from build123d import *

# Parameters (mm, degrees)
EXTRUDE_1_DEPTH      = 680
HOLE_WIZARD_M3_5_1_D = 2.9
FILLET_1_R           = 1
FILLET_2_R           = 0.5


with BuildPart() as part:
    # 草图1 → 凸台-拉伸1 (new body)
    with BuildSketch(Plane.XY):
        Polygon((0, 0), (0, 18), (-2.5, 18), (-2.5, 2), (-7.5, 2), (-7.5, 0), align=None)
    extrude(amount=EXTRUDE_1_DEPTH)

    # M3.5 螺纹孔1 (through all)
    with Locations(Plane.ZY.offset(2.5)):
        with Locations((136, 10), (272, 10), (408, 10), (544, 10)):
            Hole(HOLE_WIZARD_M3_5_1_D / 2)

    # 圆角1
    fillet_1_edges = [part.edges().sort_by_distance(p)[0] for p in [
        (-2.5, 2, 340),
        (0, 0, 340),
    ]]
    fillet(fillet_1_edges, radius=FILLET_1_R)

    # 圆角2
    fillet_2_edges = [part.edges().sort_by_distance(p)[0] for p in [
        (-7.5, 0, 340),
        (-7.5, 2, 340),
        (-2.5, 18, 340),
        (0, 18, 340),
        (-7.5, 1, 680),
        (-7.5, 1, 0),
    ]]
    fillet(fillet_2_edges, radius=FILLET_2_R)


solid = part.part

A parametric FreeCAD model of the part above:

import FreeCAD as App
import Part
import Sketcher


def edges_at(feature, points):
    """Names of the edges that pass closest to the given points."""
    edges = feature.Shape.Edges
    near = lambda p: min(range(len(edges)), key=lambda i: edges[i].distToShape(Part.Vertex(*p))[0])
    return sorted({f"Edge{near(p) + 1}" for p in points})

doc = App.newDocument("Part")
body = doc.addObject("PartDesign::Body", "Body")

# Sketch on XY plane
sketch1 = body.newObject("Sketcher::SketchObject", "Sketch")
sketch1.AttachmentSupport = (doc.getObject("XY_Plane"), [""])
sketch1.MapMode = "FlatFace"
sketch1.addGeometry([
    Part.LineSegment(App.Vector(0, 0, 0), App.Vector(0, 18, 0)),  # 0
    Part.LineSegment(App.Vector(0, 18, 0), App.Vector(-2.5, 18, 0)),  # 1
    Part.LineSegment(App.Vector(-2.5, 18, 0), App.Vector(-2.5, 2, 0)),  # 2
    Part.LineSegment(App.Vector(-2.5, 2, 0), App.Vector(-7.5, 2, 0)),  # 3
    Part.LineSegment(App.Vector(-7.5, 2, 0), App.Vector(-7.5, 0, 0)),  # 4
    Part.LineSegment(App.Vector(-7.5, 0, 0), App.Vector(0, 0, 0)),  # 5
], False)
sketch1.addConstraint([
    Sketcher.Constraint("Coincident", 0, 2, 1, 1),
    Sketcher.Constraint("Coincident", 1, 2, 2, 1),
    Sketcher.Constraint("Coincident", 2, 2, 3, 1),
    Sketcher.Constraint("Coincident", 3, 2, 4, 1),
    Sketcher.Constraint("Coincident", 4, 2, 5, 1),
    Sketcher.Constraint("Coincident", 5, 2, 0, 1),
    Sketcher.Constraint("Vertical", 0),
    Sketcher.Constraint("Horizontal", 1),
    Sketcher.Constraint("Vertical", 2),
    Sketcher.Constraint("Horizontal", 3),
    Sketcher.Constraint("Vertical", 4),
    Sketcher.Constraint("Horizontal", 5),
    Sketcher.Constraint("Coincident", 5, 2, -1, 1),
    Sketcher.Constraint("DistanceX", 3, 2, 3, 1, 5.0),
    Sketcher.Constraint("DistanceY", 0, 1, 0, 2, 18.0),
    Sketcher.Constraint("DistanceY", 2, 2, 2, 1, 16.0),
    Sketcher.Constraint("DistanceX", 1, 2, 1, 1, 2.5),
])
pad1 = body.newObject("PartDesign::Pad", "Pad")
pad1.Profile = sketch1
pad1.Length = 680

# Sketch on YZ plane
sketch2 = body.newObject("Sketcher::SketchObject", "Sketch001")
sketch2.AttachmentSupport = (doc.getObject("YZ_Plane"), [""])
sketch2.MapMode = "FlatFace"
sketch2.AttachmentOffset = App.Placement(App.Vector(0, 0, -2.5), App.Rotation())
sketch2.addGeometry([
    Part.Circle(App.Vector(10, 136, 0), App.Vector(0, 0, 1), 1.45),
    Part.Circle(App.Vector(10, 272, 0), App.Vector(0, 0, 1), 1.45),
    Part.Circle(App.Vector(10, 408, 0), App.Vector(0, 0, 1), 1.45),
    Part.Circle(App.Vector(10, 544, 0), App.Vector(0, 0, 1), 1.45),
], False)
sketch2.addConstraint([
    Sketcher.Constraint("Equal", 0, 1),
    Sketcher.Constraint("Equal", 1, 2),
    Sketcher.Constraint("Equal", 2, 3),
    Sketcher.Constraint("Vertical", 0, 3, 1, 3),
    Sketcher.Constraint("Vertical", 1, 3, 2, 3),
    Sketcher.Constraint("Vertical", 2, 3, 3, 3),
    Sketcher.Constraint("Diameter", 0, 2.9),
    Sketcher.Constraint("DistanceX", -1, 1, 0, 3, 10.0),
    Sketcher.Constraint("DistanceY", -1, 1, 0, 3, 136.0),
    Sketcher.Constraint("DistanceY", -1, 1, 1, 3, 272.0),
    Sketcher.Constraint("DistanceY", -1, 1, 2, 3, 408.0),
    Sketcher.Constraint("DistanceY", -1, 1, 3, 3, 544.0),
])
doc.recompute()
hole = body.newObject("PartDesign::Hole", "Hole")
hole.Profile = sketch2
hole.ThreadType = "None"
hole.Diameter = 2.9
hole.DepthType = "ThroughAll"
hole.Reversed = True
doc.recompute()

fillet = body.newObject("PartDesign::Fillet", "Fillet")
fillet.Base = (hole, edges_at(hole, [(-2.5, 2, 340), (0, 0, 340)]))
fillet.Radius = 1
doc.recompute()

fillet2 = body.newObject("PartDesign::Fillet", "Fillet001")
fillet2.Base = (fillet, edges_at(fillet, [
    (-7.5, 0, 340),
    (-7.5, 2, 340),
    (-2.5, 18, 340),
    (0, 18, 340),
    (-7.5, 1, 680),
    (-7.5, 1, 0),
]))
fillet2.Radius = 0.5

doc.recompute()
